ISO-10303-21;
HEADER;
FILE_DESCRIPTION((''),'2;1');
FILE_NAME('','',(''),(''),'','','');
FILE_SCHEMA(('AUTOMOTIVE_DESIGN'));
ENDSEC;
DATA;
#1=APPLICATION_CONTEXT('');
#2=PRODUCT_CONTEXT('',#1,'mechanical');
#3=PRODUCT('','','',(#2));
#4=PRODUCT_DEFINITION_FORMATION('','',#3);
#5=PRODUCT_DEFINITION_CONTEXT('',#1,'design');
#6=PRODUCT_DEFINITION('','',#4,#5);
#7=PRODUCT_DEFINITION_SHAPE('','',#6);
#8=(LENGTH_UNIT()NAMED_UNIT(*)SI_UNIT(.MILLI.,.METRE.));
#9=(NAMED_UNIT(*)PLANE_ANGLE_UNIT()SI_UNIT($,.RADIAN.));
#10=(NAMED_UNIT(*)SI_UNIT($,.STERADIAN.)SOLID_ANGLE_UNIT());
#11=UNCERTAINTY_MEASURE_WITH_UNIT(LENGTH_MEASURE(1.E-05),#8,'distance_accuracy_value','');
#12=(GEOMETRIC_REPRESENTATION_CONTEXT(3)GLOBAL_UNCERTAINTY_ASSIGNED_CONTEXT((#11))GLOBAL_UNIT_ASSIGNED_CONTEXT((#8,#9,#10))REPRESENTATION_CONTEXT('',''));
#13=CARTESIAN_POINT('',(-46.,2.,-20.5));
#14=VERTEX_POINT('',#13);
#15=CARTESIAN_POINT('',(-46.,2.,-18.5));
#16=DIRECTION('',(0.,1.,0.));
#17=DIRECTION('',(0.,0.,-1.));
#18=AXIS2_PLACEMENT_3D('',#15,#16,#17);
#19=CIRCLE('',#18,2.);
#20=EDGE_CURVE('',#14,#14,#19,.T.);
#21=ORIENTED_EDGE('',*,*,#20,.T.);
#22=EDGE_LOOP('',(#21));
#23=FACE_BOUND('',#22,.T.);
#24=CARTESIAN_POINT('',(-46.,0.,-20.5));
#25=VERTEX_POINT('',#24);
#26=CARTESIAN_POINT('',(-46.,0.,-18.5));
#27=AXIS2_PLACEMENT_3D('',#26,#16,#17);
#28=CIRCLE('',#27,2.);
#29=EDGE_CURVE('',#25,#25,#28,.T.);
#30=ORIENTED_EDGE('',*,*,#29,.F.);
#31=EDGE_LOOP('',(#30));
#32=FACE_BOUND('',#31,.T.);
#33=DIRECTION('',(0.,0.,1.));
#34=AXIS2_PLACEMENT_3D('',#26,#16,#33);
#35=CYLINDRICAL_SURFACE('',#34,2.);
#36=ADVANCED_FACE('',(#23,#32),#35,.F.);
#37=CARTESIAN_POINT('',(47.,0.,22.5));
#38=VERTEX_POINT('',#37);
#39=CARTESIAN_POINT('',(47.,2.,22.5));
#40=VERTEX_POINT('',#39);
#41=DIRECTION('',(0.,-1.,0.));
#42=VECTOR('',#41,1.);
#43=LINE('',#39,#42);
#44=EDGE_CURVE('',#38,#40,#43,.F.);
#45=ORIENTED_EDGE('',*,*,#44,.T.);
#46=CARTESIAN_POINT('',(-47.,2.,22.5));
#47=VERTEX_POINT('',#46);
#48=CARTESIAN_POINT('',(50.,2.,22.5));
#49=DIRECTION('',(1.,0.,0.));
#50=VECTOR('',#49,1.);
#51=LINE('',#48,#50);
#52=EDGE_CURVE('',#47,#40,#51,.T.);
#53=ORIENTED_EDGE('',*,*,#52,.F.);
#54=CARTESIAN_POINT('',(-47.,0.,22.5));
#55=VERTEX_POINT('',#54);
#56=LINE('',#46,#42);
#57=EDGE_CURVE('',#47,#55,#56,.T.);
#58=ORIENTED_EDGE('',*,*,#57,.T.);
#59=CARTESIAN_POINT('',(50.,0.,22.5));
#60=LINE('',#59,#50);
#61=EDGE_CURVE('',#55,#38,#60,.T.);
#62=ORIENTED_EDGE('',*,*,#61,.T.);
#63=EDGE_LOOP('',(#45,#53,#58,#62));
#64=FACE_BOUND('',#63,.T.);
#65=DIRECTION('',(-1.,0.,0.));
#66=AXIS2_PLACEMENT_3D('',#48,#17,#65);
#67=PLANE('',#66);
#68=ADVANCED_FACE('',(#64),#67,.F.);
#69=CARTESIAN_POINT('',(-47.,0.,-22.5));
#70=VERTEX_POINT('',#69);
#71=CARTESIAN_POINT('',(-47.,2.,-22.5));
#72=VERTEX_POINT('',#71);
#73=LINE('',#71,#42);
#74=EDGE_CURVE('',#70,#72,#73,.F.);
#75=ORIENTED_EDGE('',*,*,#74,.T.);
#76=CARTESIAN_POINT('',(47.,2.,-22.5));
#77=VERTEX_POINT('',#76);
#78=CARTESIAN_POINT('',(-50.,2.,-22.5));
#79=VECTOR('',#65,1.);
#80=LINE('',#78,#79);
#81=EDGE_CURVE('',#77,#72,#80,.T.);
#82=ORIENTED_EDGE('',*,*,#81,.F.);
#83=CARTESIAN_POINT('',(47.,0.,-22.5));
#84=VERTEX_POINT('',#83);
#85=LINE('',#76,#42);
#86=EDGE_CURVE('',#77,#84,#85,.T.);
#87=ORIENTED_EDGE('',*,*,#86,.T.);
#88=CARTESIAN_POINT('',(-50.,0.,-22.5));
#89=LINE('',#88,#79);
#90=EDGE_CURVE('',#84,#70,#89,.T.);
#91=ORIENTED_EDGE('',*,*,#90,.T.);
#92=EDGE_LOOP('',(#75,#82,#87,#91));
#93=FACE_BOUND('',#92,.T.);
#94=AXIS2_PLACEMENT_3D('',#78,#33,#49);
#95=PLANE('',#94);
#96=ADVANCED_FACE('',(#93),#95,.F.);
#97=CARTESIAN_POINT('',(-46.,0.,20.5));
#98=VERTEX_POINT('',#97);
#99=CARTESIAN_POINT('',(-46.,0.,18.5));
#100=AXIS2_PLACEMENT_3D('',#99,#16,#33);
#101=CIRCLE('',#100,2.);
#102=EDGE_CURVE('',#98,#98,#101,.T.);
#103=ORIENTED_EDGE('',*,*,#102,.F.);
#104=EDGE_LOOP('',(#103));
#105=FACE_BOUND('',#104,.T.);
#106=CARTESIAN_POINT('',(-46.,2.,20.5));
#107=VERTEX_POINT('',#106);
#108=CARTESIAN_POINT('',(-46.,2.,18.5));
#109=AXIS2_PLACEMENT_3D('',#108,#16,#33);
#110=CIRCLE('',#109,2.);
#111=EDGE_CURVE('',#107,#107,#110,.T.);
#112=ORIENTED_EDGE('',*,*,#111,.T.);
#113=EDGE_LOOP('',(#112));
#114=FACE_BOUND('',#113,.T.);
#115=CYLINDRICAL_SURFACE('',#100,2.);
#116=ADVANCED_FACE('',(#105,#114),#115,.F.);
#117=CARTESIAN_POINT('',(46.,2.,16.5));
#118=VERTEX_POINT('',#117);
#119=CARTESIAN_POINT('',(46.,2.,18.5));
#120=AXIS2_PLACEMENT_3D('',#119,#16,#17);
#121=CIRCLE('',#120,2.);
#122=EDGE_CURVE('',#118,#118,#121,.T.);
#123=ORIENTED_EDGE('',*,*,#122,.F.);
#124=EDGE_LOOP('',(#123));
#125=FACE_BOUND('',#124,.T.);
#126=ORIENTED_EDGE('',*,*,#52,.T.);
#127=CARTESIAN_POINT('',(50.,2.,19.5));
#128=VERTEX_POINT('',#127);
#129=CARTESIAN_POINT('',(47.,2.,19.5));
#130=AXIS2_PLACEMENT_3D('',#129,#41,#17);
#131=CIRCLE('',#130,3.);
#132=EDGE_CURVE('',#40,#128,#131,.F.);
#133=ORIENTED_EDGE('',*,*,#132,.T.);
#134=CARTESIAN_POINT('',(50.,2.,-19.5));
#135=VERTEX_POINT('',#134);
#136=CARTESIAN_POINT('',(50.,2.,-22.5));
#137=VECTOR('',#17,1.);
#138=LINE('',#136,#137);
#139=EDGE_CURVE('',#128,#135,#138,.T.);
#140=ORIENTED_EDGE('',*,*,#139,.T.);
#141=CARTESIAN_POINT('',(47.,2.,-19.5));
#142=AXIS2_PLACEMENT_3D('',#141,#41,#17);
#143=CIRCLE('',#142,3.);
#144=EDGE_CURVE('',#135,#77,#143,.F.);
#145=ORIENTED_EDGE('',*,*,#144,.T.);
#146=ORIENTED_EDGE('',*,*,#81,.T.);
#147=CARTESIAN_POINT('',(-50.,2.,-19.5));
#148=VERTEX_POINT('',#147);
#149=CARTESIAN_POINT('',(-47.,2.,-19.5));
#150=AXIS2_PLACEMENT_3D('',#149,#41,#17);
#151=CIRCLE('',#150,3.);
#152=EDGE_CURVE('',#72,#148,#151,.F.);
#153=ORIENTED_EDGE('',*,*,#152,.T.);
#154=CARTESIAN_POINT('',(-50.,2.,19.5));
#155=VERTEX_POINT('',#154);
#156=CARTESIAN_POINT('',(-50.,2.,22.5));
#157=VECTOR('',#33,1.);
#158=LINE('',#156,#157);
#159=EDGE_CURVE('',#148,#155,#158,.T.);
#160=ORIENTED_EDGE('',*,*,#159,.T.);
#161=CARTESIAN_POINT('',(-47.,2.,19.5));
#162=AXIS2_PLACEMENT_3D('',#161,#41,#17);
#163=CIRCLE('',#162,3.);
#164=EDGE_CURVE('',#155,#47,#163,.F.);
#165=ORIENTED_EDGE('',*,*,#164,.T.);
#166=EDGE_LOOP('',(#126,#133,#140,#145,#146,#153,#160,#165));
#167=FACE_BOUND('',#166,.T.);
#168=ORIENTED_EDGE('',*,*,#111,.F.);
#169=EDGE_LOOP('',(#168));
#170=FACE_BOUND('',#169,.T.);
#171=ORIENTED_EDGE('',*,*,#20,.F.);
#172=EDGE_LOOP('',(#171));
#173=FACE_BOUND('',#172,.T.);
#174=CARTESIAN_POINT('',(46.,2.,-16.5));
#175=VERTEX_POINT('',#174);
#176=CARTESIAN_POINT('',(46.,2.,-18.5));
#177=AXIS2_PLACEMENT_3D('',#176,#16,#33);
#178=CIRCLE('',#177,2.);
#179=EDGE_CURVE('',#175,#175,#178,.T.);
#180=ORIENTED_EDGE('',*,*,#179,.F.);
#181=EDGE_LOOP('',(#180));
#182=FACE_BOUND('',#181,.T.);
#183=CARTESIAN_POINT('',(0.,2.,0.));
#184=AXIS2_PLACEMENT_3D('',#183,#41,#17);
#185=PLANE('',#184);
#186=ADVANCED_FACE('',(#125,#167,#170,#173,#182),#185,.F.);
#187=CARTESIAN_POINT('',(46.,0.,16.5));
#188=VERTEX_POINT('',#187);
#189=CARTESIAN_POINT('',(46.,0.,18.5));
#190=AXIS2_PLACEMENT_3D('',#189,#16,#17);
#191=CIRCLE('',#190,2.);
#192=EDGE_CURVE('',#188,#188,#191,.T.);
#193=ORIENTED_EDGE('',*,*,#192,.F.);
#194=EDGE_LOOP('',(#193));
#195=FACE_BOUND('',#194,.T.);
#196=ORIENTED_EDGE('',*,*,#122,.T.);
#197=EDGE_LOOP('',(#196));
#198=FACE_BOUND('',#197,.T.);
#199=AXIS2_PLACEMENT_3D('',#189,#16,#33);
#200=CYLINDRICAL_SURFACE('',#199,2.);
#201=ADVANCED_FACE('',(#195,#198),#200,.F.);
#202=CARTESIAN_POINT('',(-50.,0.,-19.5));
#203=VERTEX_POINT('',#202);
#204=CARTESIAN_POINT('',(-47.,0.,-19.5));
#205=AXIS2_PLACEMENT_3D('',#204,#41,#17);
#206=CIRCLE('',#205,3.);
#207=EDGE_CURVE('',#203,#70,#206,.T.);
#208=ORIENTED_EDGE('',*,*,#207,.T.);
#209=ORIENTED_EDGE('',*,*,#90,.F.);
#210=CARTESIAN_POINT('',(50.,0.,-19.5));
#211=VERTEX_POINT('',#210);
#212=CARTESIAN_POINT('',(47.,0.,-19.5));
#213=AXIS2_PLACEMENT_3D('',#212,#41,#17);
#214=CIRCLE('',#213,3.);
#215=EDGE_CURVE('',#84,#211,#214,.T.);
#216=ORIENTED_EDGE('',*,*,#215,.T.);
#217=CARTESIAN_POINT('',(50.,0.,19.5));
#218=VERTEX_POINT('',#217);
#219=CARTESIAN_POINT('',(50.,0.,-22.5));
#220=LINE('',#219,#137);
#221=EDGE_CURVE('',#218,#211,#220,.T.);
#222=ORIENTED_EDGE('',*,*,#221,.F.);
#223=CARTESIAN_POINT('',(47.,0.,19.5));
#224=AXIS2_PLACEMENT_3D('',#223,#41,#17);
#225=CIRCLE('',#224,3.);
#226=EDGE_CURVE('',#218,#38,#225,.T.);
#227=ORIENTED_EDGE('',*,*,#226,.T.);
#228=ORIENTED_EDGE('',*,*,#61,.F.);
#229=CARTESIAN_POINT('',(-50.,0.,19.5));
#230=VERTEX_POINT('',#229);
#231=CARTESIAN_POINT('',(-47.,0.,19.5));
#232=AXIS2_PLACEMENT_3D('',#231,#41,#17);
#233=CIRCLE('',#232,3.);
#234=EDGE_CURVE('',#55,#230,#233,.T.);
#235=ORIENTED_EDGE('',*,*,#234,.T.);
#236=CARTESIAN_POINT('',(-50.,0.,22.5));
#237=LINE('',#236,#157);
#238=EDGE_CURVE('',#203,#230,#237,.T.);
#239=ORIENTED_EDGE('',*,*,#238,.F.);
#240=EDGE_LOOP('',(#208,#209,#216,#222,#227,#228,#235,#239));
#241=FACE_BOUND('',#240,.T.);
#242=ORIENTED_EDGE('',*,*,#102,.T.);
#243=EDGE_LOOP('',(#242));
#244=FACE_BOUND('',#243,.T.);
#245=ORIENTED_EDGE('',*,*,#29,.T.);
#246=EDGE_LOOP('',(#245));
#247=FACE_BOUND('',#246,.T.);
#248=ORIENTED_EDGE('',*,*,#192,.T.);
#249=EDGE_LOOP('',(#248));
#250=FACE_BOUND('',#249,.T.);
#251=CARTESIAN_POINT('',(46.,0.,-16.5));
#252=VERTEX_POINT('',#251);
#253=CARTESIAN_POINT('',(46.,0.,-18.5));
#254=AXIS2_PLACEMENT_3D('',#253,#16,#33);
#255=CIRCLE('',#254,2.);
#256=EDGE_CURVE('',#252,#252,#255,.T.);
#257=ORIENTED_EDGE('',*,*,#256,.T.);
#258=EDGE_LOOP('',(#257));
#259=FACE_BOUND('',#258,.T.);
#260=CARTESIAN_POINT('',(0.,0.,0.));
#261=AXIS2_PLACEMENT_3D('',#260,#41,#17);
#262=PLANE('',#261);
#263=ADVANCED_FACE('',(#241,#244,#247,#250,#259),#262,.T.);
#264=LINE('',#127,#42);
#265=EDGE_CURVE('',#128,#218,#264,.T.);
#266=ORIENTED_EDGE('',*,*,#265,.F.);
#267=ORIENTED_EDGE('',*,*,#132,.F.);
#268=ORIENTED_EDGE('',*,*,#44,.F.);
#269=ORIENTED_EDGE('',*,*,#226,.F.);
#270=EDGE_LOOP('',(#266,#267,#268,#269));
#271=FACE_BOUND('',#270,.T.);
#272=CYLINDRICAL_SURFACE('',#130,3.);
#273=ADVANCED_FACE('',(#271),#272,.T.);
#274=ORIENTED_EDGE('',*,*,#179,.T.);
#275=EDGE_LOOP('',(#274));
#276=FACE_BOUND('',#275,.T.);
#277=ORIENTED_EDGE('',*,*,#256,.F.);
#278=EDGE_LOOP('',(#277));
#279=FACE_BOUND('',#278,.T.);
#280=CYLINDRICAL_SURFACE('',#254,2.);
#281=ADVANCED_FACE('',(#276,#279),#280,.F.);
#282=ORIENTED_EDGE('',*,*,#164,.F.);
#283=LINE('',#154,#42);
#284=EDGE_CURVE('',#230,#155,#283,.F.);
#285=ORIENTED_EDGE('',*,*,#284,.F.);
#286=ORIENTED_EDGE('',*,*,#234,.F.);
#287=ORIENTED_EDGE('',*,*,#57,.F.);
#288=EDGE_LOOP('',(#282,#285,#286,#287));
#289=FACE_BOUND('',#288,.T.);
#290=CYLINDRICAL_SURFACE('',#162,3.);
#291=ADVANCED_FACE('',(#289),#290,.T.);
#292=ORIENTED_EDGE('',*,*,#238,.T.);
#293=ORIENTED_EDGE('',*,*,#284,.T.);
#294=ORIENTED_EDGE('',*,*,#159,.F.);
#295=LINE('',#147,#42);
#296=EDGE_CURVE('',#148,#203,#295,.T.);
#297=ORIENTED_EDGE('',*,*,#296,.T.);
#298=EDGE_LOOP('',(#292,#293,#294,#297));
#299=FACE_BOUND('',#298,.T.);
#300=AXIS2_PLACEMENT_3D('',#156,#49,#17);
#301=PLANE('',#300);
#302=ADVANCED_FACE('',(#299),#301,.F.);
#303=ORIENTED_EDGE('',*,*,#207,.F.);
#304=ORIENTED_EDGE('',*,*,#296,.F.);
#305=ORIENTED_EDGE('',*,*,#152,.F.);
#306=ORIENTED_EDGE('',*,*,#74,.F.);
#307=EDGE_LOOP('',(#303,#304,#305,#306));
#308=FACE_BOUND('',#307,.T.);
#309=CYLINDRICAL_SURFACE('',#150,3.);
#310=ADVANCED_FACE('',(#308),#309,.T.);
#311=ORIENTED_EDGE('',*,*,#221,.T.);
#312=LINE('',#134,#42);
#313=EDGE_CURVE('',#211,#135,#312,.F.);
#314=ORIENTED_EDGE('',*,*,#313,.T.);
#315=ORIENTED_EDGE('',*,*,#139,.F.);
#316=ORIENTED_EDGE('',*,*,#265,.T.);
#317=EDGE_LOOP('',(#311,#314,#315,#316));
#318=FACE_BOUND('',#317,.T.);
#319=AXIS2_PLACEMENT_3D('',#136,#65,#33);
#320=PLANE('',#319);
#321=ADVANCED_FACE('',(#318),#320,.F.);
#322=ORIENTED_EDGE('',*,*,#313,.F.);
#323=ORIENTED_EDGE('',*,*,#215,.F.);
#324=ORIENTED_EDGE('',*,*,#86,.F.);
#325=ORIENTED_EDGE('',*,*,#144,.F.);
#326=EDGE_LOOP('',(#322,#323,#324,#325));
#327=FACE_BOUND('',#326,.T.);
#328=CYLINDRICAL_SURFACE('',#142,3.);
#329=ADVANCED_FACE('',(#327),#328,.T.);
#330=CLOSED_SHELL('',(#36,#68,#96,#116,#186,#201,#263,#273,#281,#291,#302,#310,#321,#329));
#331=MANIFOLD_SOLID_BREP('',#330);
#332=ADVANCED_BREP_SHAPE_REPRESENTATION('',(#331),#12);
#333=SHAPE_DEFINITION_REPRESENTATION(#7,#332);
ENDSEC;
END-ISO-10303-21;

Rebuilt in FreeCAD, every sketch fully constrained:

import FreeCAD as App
import Part
import Sketcher


def edges_at(feature, points):
    """Names of the edges that pass closest to the given points."""
    edges = feature.Shape.Edges
    near = lambda p: min(range(len(edges)), key=lambda i: edges[i].distToShape(Part.Vertex(*p))[0])
    return sorted({f"Edge{near(p) + 1}" for p in points})


def add_polygon(sketch, points):
    """Adds a closed chain of lines whose ends are joined by coincident constraints."""
    first, n = sketch.GeometryCount, len(points)
    for a, b in zip(points, points[1:] + points[:1]):
        sketch.addGeometry(Part.LineSegment(App.Vector(*a, 0), App.Vector(*b, 0)), False)
    for i in range(n):
        sketch.addConstraint(Sketcher.Constraint("Coincident", first + i, 2, first + (i + 1) % n, 1))

doc = App.newDocument("Part")
body = doc.addObject("PartDesign::Body", "Body")

sketch1 = body.newObject("Sketcher::SketchObject", "Sketch")
sketch1.AttachmentSupport = (doc.getObject("XZ_Plane"), [""])
sketch1.MapMode = "FlatFace"
add_polygon(sketch1, [(-50, -22), (-50, 22), (50, 22), (50, -22)])
sketch1.addConstraint([
    Sketcher.Constraint("Vertical", 0),
    Sketcher.Constraint("Horizontal", 1),
    Sketcher.Constraint("Vertical", 2),
    Sketcher.Constraint("Horizontal", 3),
    Sketcher.Constraint("Symmetric", 0, 2, 2, 2, -1, 1),
    Sketcher.Constraint("DistanceX", 1, 1, 1, 2, 100.0),
    Sketcher.Constraint("DistanceY", 0, 1, 0, 2, 45.0),
])
pad1 = body.newObject("PartDesign::Pad", "Pad")
pad1.Profile = sketch1
pad1.Length = 2
pad1.Reversed = True

sketch2 = body.newObject("Sketcher::SketchObject", "Sketch001")
sketch2.AttachmentSupport = (doc.getObject("XZ_Plane"), [""])
sketch2.MapMode = "FlatFace"
sketch2.AttachmentOffset = App.Placement(App.Vector(0, 0, -2), App.Rotation())
sketch2.addGeometry([
    Part.Circle(App.Vector(46, -18.5, 0), App.Vector(0, 0, 1), 2),
    Part.Circle(App.Vector(46, 18.5, 0), App.Vector(0, 0, 1), 2),
    Part.Circle(App.Vector(-46, 18.5, 0), App.Vector(0, 0, 1), 2),
    Part.Circle(App.Vector(-46, -18.5, 0), App.Vector(0, 0, 1), 2),
], False)
sketch2.addConstraint([
    Sketcher.Constraint("Equal", 0, 1),
    Sketcher.Constraint("Equal", 1, 2),
    Sketcher.Constraint("Equal", 2, 3),
    Sketcher.Constraint("Symmetric", 0, 3, 2, 3, -1, 1),
    Sketcher.Constraint("Symmetric", 1, 3, 3, 3, -1, 1),
    Sketcher.Constraint("Symmetric", 1, 3, 2, 3, -2),
    Sketcher.Constraint("Diameter", 0, 4.0),
    Sketcher.Constraint("DistanceX", -1, 1, 0, 3, 46.0),
    Sketcher.Constraint("DistanceY", 0, 3, 1, 3, 37.0),
])
pocket1 = body.newObject("PartDesign::Pocket", "Pocket")
pocket1.Profile = sketch2
pocket1.Type = "ThroughAll"
pocket1.Reversed = True
doc.recompute()

fillet = body.newObject("PartDesign::Fillet", "Fillet")
fillet.Base = (pocket1, edges_at(pocket1, [
    (-50, 1, -22.5),
    (50, 1, -22.5),
    (50, 1, 22.5),
    (-50, 1, 22.5),
]))
fillet.Radius = 3

doc.recompute()
